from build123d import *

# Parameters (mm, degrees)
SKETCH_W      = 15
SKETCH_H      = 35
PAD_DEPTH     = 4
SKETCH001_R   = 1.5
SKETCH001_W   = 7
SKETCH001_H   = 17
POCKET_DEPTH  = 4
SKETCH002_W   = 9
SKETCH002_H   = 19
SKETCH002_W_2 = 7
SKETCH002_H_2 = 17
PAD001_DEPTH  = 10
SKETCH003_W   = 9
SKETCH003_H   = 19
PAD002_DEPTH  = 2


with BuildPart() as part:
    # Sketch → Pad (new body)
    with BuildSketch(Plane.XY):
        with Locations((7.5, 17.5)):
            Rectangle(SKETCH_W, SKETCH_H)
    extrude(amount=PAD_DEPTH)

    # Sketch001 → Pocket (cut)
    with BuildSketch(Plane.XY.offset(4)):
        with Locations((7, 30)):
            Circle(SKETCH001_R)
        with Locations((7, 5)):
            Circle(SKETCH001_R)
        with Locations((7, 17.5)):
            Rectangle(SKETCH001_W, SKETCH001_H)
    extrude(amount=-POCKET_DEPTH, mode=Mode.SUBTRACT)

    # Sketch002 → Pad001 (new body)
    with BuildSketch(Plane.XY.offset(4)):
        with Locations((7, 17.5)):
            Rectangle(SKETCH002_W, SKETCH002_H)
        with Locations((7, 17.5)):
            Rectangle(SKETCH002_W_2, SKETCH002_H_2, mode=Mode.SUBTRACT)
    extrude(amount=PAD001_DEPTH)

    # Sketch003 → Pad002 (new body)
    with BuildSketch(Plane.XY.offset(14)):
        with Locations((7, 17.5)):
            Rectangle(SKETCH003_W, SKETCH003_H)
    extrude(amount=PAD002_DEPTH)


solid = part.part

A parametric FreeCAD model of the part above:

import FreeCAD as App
import Part
import Sketcher

V = App.Vector
Q = App.Units.Quantity


def add_polygon(sketch, points):
    """Adds a closed chain of lines whose ends are joined by coincident constraints."""
    first, n = sketch.GeometryCount, len(points)
    for a, b in zip(points, points[1:] + points[:1]):
        sketch.addGeometry(Part.LineSegment(App.Vector(*a, 0), App.Vector(*b, 0)), False)
    for i in range(n):
        sketch.addConstraint(Sketcher.Constraint("Coincident", first + i, 2, first + (i + 1) % n, 1))

doc = App.newDocument("Part")
body = doc.addObject("PartDesign::Body", "Body")

sketch1 = body.newObject("Sketcher::SketchObject", "Sketch")
sketch1.AttachmentSupport = (doc.getObject("XY_Plane"), [""])
sketch1.MapMode = "FlatFace"
add_polygon(sketch1, [(0, 35), (0, 0), (15, 0), (15, 35)])
sketch1.addConstraint([
    Sketcher.Constraint("Vertical", 0),
    Sketcher.Constraint("Horizontal", 1),
    Sketcher.Constraint("Vertical", 2),
    Sketcher.Constraint("Horizontal", 3),
    Sketcher.Constraint("Coincident", 0, 2, -1, 1),
    Sketcher.Constraint("DistanceX", 1, 1, 1, 2, Q("15 mm")),
    Sketcher.Constraint("DistanceY", 0, 2, 0, 1, Q("35 mm")),
])
pad1 = body.newObject("PartDesign::Pad", "Pad")
pad1.Profile = sketch1
pad1.Length = 4

sketch2 = body.newObject("Sketcher::SketchObject", "Sketch001")
sketch2.AttachmentSupport = (doc.getObject("XY_Plane"), [""])
sketch2.MapMode = "FlatFace"
sketch2.AttachmentOffset = App.Placement(V(0, 0, 4), App.Rotation())
sketch2.addGeometry(Part.Circle(V(7, 30, 0), V(0, 0, 1), 1.5), False)
sketch2.addGeometry(Part.Circle(V(7, 5, 0), V(0, 0, 1), 1.5), False)
add_polygon(sketch2, [(3.5, 26), (3.5, 9), (10.5, 9), (10.5, 26)])
sketch2.addConstraint([
    Sketcher.Constraint("Vertical", 2),
    Sketcher.Constraint("Horizontal", 3),
    Sketcher.Constraint("Vertical", 4),
    Sketcher.Constraint("Horizontal", 5),
    Sketcher.Constraint("Equal", 0, 1),
    Sketcher.Constraint("Vertical", 0, 3, 1, 3),
    Sketcher.Constraint("Diameter", 0, Q("3 mm")),
    Sketcher.Constraint("DistanceX", 3, 1, 3, 2, Q("7 mm")),
    Sketcher.Constraint("DistanceY", 2, 2, 2, 1, Q("17 mm")),
    Sketcher.Constraint("DistanceX", -1, 1, 0, 3, Q("7 mm")),
    Sketcher.Constraint("DistanceY", -1, 1, 0, 3, Q("30 mm")),
    Sketcher.Constraint("DistanceY", -1, 1, 1, 3, Q("5 mm")),
    Sketcher.Constraint("DistanceY", -1, 1, 2, 2, Q("9 mm")),
    Sketcher.Constraint("DistanceX", -1, 1, 2, 2, Q("3.5 mm")),
])
pocket1 = body.newObject("PartDesign::Pocket", "Pocket")
pocket1.Profile = sketch2
pocket1.Length = 4

sketch3 = body.newObject("Sketcher::SketchObject", "Sketch002")
sketch3.AttachmentSupport = (doc.getObject("XY_Plane"), [""])
sketch3.MapMode = "FlatFace"
sketch3.AttachmentOffset = App.Placement(V(0, 0, 4), App.Rotation())
add_polygon(sketch3, [(2, 27), (2, 8), (12, 8), (12, 27)])
add_polygon(sketch3, [(10, 9), (4, 9), (4, 26), (10, 26)])
sketch3.addConstraint([
    Sketcher.Constraint("Vertical", 0),
    Sketcher.Constraint("Horizontal", 1),
    Sketcher.Constraint("Vertical", 2),
    Sketcher.Constraint("Horizontal", 3),
    Sketcher.Constraint("Horizontal", 4),
    Sketcher.Constraint("Vertical", 5),
    Sketcher.Constraint("Horizontal", 6),
    Sketcher.Constraint("Vertical", 7),
    Sketcher.Constraint("DistanceX", 1, 1, 1, 2, Q("9 mm")),
    Sketcher.Constraint("DistanceX", 4, 2, 4, 1, Q("7 mm")),
    Sketcher.Constraint("DistanceY", 0, 2, 0, 1, Q("19 mm")),
    Sketcher.Constraint("DistanceY", 5, 1, 5, 2, Q("17 mm")),
    Sketcher.Constraint("DistanceY", -1, 1, 0, 2, Q("8 mm")),
    Sketcher.Constraint("DistanceY", -1, 1, 4, 2, Q("9 mm")),
    Sketcher.Constraint("DistanceX", 0, 2, 4, 2, Q("1 mm")),
    Sketcher.Constraint("DistanceX", -1, 1, 0, 2, Q("2.5 mm")),
])
pad2 = body.newObject("PartDesign::Pad", "Pad001")
pad2.Profile = sketch3
pad2.Length = 10

sketch4 = body.newObject("Sketcher::SketchObject", "Sketch003")
sketch4.AttachmentSupport = (doc.getObject("XY_Plane"), [""])
sketch4.MapMode = "FlatFace"
sketch4.AttachmentOffset = App.Placement(V(0, 0, 14), App.Rotation())
add_polygon(sketch4, [(2, 27), (2, 8), (12, 8), (12, 27)])
sketch4.addConstraint([
    Sketcher.Constraint("Vertical", 0),
    Sketcher.Constraint("Horizontal", 1),
    Sketcher.Constraint("Vertical", 2),
    Sketcher.Constraint("Horizontal", 3),
    Sketcher.Constraint("DistanceX", 1, 1, 1, 2, Q("9 mm")),
    Sketcher.Constraint("DistanceY", 0, 2, 0, 1, Q("19 mm")),
    Sketcher.Constraint("DistanceY", -1, 1, 0, 2, Q("8 mm")),
    Sketcher.Constraint("DistanceX", -1, 1, 0, 2, Q("2.5 mm")),
])
pad3 = body.newObject("PartDesign::Pad", "Pad002")
pad3.Profile = sketch4
pad3.Length = 2

doc.recompute()
